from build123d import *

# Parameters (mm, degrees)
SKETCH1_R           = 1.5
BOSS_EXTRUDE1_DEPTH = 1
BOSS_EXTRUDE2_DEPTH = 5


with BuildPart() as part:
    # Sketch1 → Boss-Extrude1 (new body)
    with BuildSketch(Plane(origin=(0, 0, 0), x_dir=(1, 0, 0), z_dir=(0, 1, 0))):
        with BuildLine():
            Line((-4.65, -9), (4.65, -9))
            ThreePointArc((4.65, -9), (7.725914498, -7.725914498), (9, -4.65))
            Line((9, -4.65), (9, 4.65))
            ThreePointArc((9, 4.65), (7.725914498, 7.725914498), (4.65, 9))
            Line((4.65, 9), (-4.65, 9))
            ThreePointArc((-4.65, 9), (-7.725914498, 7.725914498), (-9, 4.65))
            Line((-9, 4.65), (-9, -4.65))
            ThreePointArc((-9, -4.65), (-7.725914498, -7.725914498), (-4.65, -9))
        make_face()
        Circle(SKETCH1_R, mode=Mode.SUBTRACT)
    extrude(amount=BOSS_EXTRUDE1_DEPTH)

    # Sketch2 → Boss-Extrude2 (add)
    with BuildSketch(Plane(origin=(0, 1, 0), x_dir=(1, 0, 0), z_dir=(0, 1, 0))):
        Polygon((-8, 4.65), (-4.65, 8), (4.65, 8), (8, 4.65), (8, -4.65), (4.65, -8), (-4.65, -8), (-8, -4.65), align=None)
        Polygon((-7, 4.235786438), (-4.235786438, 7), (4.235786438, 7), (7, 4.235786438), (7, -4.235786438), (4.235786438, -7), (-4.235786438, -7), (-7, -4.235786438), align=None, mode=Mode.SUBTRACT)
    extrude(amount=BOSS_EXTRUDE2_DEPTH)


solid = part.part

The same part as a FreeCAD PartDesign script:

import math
import FreeCAD as App
import Part
import Sketcher
from FreeCAD import Vector
Q = App.Units.Quantity

doc = App.newDocument("Part")
body = doc.addObject("PartDesign::Body", "Body")

# Sketch on XZ plane
sketch1 = body.newObject("Sketcher::SketchObject", "Sketch")
sketch1.AttachmentSupport = (doc.getObject("XZ_Plane"), [""])
sketch1.MapMode = "FlatFace"
sketch1.addGeometry(Part.LineSegment(Vector(-4.7, 9, 0), Vector(4.7, 9, 0)), False)
sketch1.addGeometry(Part.ArcOfCircle(Part.Circle(Vector(4.6, 4.6, 0), Vector(0, 0, 1), 4.4), math.radians(0), math.radians(90)), False)
sketch1.addGeometry(Part.LineSegment(Vector(9, 4.7, 0), Vector(9, -4.7, 0)), False)
sketch1.addGeometry(Part.ArcOfCircle(Part.Circle(Vector(4.6, -4.6, 0), Vector(0, 0, 1), 4.4), math.radians(-90), math.radians(0)), False)
sketch1.addGeometry(Part.LineSegment(Vector(4.7, -9, 0), Vector(-4.7, -9, 0)), False)
sketch1.addGeometry(Part.ArcOfCircle(Part.Circle(Vector(-4.6, -4.6, 0), Vector(0, 0, 1), 4.4), math.radians(-180), math.radians(-90)), False)
sketch1.addGeometry(Part.LineSegment(Vector(-9, -4.7, 0), Vector(-9, 4.7, 0)), False)
sketch1.addGeometry(Part.ArcOfCircle(Part.Circle(Vector(-4.6, 4.6, 0), Vector(0, 0, 1), 4.4), math.radians(90), math.radians(180)), False)
sketch1.addGeometry(Part.Circle(Vector(0, 0, 0), Vector(0, 0, 1), 1.5), False)
sketch1.addConstraint(Sketcher.Constraint("Tangent", 0, 2, 1, 2))
sketch1.addConstraint(Sketcher.Constraint("Tangent", 1, 1, 2, 1))
sketch1.addConstraint(Sketcher.Constraint("Tangent", 2, 2, 3, 2))
sketch1.addConstraint(Sketcher.Constraint("Tangent", 3, 1, 4, 1))
sketch1.addConstraint(Sketcher.Constraint("Tangent", 4, 2, 5, 2))
sketch1.addConstraint(Sketcher.Constraint("Tangent", 5, 1, 6, 1))
sketch1.addConstraint(Sketcher.Constraint("Tangent", 6, 2, 7, 2))
sketch1.addConstraint(Sketcher.Constraint("Tangent", 7, 1, 0, 1))
sketch1.addConstraint(Sketcher.Constraint("Horizontal", 0))
sketch1.addConstraint(Sketcher.Constraint("Vertical", 2))
sketch1.addConstraint(Sketcher.Constraint("Horizontal", 4))
sketch1.addConstraint(Sketcher.Constraint("Vertical", 6))
sketch1.addConstraint(Sketcher.Constraint("Coincident", 8, 3, -1, 1))
sketch1.addConstraint(Sketcher.Constraint("Equal", 1, 3))
sketch1.addConstraint(Sketcher.Constraint("Equal", 3, 5))
sketch1.addConstraint(Sketcher.Constraint("Equal", 5, 7))
sketch1.addConstraint(Sketcher.Constraint("Symmetric", 1, 3, 5, 3, -1, 1))
sketch1.addConstraint(Sketcher.Constraint("Equal", 4, 2))
sketch1.addConstraint(Sketcher.Constraint("Diameter", 8, Q("3 mm")))
sketch1.addConstraint(Sketcher.Constraint("Radius", 1, Q("4.35 mm")))
sketch1.addConstraint(Sketcher.Constraint("DistanceX", 0, 1, 0, 2, Q("9.3 mm")))
pad1 = body.newObject("PartDesign::Pad", "Pad")
pad1.Profile = sketch1
pad1.Length = 1
pad1.Reversed = True

# Sketch on XZ plane
sketch2 = body.newObject("Sketcher::SketchObject", "Sketch001")
sketch2.AttachmentSupport = (doc.getObject("XZ_Plane"), [""])
sketch2.MapMode = "FlatFace"
sketch2.AttachmentOffset = App.Placement(Vector(0, 0, -1), App.Rotation())
sketch2.addGeometry(Part.LineSegment(Vector(-4.7, -8, 0), Vector(-8, -4.7, 0)), False)
sketch2.addGeometry(Part.LineSegment(Vector(-8, -4.7, 0), Vector(-8, 4.7, 0)), False)
sketch2.addGeometry(Part.LineSegment(Vector(-8, 4.7, 0), Vector(-4.7, 8, 0)), False)
sketch2.addGeometry(Part.LineSegment(Vector(-4.7, 8, 0), Vector(4.7, 8, 0)), False)
sketch2.addGeometry(Part.LineSegment(Vector(4.7, 8, 0), Vector(8, 4.7, 0)), False)
sketch2.addGeometry(Part.LineSegment(Vector(8, 4.7, 0), Vector(8, -4.7, 0)), False)
sketch2.addGeometry(Part.LineSegment(Vector(8, -4.7, 0), Vector(4.7, -8, 0)), False)
sketch2.addGeometry(Part.LineSegment(Vector(4.7, -8, 0), Vector(-4.7, -8, 0)), False)
sketch2.addGeometry(Part.LineSegment(Vector(-7, -4.2, 0), Vector(-4.2, -7, 0)), False)
sketch2.addGeometry(Part.LineSegment(Vector(-4.2, -7, 0), Vector(4.2, -7, 0)), False)
sketch2.addGeometry(Part.LineSegment(Vector(4.2, -7, 0), Vector(7, -4.2, 0)), False)
sketch2.addGeometry(Part.LineSegment(Vector(7, -4.2, 0), Vector(7, 4.2, 0)), False)
sketch2.addGeometry(Part.LineSegment(Vector(7, 4.2, 0), Vector(4.2, 7, 0)), False)
sketch2.addGeometry(Part.LineSegment(Vector(4.2, 7, 0), Vector(-4.2, 7, 0)), False)
sketch2.addGeometry(Part.LineSegment(Vector(-4.2, 7, 0), Vector(-7, 4.2, 0)), False)
sketch2.addGeometry(Part.LineSegment(Vector(-7, 4.2, 0), Vector(-7, -4.2, 0)), False)
sketch2.addConstraint(Sketcher.Constraint("Coincident", 0, 2, 1, 1))
sketch2.addConstraint(Sketcher.Constraint("Coincident", 1, 2, 2, 1))
sketch2.addConstraint(Sketcher.Constraint("Coincident", 2, 2, 3, 1))
sketch2.addConstraint(Sketcher.Constraint("Coincident", 3, 2, 4, 1))
sketch2.addConstraint(Sketcher.Constraint("Coincident", 4, 2, 5, 1))
sketch2.addConstraint(Sketcher.Constraint("Coincident", 5, 2, 6, 1))
sketch2.addConstraint(Sketcher.Constraint("Coincident", 6, 2, 7, 1))
sketch2.addConstraint(Sketcher.Constraint("Coincident", 7, 2, 0, 1))
sketch2.addConstraint(Sketcher.Constraint("Coincident", 8, 2, 9, 1))
sketch2.addConstraint(Sketcher.Constraint("Coincident", 9, 2, 10, 1))
sketch2.addConstraint(Sketcher.Constraint("Coincident", 10, 2, 11, 1))
sketch2.addConstraint(Sketcher.Constraint("Coincident", 11, 2, 12, 1))
sketch2.addConstraint(Sketcher.Constraint("Coincident", 12, 2, 13, 1))
sketch2.addConstraint(Sketcher.Constraint("Coincident", 13, 2, 14, 1))
sketch2.addConstraint(Sketcher.Constraint("Coincident", 14, 2, 15, 1))
sketch2.addConstraint(Sketcher.Constraint("Coincident", 15, 2, 8, 1))
sketch2.addConstraint(Sketcher.Constraint("Vertical", 1))
sketch2.addConstraint(Sketcher.Constraint("Horizontal", 3))
sketch2.addConstraint(Sketcher.Constraint("Vertical", 5))
sketch2.addConstraint(Sketcher.Constraint("Horizontal", 7))
sketch2.addConstraint(Sketcher.Constraint("Horizontal", 9))
sketch2.addConstraint(Sketcher.Constraint("Vertical", 11))
sketch2.addConstraint(Sketcher.Constraint("Horizontal", 13))
sketch2.addConstraint(Sketcher.Constraint("Vertical", 15))
sketch2.addConstraint(Sketcher.Constraint("Symmetric", 0, 2, 4, 2, -1, 1))
sketch2.addConstraint(Sketcher.Constraint("Symmetric", 2, 2, 6, 2, -1, 1))
sketch2.addConstraint(Sketcher.Constraint("Symmetric", 8, 2, 12, 2, -1, 1))
sketch2.addConstraint(Sketcher.Constraint("Symmetric", 10, 2, 14, 2, -1, 1))
sketch2.addConstraint(Sketcher.Constraint("Perpendicular", 0, 2))
sketch2.addConstraint(Sketcher.Constraint("Perpendicular", 2, 4))
sketch2.addConstraint(Sketcher.Constraint("Perpendicular", 4, 6))
sketch2.addConstraint(Sketcher.Constraint("Perpendicular", 6, 8))
sketch2.addConstraint(Sketcher.Constraint("Perpendicular", 8, 10))
sketch2.addConstraint(Sketcher.Constraint("Perpendicular", 10, 12))
sketch2.addConstraint(Sketcher.Constraint("Perpendicular", 12, 14))
sketch2.addConstraint(Sketcher.Constraint("Horizontal", 1, 2, 4, 2))
sketch2.addConstraint(Sketcher.Constraint("Horizontal", 11, 2, 14, 2))
sketch2.addConstraint(Sketcher.Constraint("Vertical", 3, 2, 6, 2))
sketch2.addConstraint(Sketcher.Constraint("Equal", 7, 1))
sketch2.addConstraint(Sketcher.Constraint("Equal", 13, 11))
sketch2.addConstraint(Sketcher.Constraint("DistanceX", 3, 1, 3, 2, Q("9.3 mm")))
sketch2.addConstraint(Sketcher.Constraint("DistanceX", 0, 2, -1, 1, Q("8 mm")))
sketch2.addConstraint(Sketcher.Constraint("DistanceY", 8, 2, -1, 1, Q("7 mm")))
sketch2.addConstraint(Sketcher.Constraint("Distance", 8, Q("3.909188 mm")))
pad2 = body.newObject("PartDesign::Pad", "Pad001")
pad2.Profile = sketch2
pad2.Length = 5
pad2.Reversed = True

doc.recompute()
